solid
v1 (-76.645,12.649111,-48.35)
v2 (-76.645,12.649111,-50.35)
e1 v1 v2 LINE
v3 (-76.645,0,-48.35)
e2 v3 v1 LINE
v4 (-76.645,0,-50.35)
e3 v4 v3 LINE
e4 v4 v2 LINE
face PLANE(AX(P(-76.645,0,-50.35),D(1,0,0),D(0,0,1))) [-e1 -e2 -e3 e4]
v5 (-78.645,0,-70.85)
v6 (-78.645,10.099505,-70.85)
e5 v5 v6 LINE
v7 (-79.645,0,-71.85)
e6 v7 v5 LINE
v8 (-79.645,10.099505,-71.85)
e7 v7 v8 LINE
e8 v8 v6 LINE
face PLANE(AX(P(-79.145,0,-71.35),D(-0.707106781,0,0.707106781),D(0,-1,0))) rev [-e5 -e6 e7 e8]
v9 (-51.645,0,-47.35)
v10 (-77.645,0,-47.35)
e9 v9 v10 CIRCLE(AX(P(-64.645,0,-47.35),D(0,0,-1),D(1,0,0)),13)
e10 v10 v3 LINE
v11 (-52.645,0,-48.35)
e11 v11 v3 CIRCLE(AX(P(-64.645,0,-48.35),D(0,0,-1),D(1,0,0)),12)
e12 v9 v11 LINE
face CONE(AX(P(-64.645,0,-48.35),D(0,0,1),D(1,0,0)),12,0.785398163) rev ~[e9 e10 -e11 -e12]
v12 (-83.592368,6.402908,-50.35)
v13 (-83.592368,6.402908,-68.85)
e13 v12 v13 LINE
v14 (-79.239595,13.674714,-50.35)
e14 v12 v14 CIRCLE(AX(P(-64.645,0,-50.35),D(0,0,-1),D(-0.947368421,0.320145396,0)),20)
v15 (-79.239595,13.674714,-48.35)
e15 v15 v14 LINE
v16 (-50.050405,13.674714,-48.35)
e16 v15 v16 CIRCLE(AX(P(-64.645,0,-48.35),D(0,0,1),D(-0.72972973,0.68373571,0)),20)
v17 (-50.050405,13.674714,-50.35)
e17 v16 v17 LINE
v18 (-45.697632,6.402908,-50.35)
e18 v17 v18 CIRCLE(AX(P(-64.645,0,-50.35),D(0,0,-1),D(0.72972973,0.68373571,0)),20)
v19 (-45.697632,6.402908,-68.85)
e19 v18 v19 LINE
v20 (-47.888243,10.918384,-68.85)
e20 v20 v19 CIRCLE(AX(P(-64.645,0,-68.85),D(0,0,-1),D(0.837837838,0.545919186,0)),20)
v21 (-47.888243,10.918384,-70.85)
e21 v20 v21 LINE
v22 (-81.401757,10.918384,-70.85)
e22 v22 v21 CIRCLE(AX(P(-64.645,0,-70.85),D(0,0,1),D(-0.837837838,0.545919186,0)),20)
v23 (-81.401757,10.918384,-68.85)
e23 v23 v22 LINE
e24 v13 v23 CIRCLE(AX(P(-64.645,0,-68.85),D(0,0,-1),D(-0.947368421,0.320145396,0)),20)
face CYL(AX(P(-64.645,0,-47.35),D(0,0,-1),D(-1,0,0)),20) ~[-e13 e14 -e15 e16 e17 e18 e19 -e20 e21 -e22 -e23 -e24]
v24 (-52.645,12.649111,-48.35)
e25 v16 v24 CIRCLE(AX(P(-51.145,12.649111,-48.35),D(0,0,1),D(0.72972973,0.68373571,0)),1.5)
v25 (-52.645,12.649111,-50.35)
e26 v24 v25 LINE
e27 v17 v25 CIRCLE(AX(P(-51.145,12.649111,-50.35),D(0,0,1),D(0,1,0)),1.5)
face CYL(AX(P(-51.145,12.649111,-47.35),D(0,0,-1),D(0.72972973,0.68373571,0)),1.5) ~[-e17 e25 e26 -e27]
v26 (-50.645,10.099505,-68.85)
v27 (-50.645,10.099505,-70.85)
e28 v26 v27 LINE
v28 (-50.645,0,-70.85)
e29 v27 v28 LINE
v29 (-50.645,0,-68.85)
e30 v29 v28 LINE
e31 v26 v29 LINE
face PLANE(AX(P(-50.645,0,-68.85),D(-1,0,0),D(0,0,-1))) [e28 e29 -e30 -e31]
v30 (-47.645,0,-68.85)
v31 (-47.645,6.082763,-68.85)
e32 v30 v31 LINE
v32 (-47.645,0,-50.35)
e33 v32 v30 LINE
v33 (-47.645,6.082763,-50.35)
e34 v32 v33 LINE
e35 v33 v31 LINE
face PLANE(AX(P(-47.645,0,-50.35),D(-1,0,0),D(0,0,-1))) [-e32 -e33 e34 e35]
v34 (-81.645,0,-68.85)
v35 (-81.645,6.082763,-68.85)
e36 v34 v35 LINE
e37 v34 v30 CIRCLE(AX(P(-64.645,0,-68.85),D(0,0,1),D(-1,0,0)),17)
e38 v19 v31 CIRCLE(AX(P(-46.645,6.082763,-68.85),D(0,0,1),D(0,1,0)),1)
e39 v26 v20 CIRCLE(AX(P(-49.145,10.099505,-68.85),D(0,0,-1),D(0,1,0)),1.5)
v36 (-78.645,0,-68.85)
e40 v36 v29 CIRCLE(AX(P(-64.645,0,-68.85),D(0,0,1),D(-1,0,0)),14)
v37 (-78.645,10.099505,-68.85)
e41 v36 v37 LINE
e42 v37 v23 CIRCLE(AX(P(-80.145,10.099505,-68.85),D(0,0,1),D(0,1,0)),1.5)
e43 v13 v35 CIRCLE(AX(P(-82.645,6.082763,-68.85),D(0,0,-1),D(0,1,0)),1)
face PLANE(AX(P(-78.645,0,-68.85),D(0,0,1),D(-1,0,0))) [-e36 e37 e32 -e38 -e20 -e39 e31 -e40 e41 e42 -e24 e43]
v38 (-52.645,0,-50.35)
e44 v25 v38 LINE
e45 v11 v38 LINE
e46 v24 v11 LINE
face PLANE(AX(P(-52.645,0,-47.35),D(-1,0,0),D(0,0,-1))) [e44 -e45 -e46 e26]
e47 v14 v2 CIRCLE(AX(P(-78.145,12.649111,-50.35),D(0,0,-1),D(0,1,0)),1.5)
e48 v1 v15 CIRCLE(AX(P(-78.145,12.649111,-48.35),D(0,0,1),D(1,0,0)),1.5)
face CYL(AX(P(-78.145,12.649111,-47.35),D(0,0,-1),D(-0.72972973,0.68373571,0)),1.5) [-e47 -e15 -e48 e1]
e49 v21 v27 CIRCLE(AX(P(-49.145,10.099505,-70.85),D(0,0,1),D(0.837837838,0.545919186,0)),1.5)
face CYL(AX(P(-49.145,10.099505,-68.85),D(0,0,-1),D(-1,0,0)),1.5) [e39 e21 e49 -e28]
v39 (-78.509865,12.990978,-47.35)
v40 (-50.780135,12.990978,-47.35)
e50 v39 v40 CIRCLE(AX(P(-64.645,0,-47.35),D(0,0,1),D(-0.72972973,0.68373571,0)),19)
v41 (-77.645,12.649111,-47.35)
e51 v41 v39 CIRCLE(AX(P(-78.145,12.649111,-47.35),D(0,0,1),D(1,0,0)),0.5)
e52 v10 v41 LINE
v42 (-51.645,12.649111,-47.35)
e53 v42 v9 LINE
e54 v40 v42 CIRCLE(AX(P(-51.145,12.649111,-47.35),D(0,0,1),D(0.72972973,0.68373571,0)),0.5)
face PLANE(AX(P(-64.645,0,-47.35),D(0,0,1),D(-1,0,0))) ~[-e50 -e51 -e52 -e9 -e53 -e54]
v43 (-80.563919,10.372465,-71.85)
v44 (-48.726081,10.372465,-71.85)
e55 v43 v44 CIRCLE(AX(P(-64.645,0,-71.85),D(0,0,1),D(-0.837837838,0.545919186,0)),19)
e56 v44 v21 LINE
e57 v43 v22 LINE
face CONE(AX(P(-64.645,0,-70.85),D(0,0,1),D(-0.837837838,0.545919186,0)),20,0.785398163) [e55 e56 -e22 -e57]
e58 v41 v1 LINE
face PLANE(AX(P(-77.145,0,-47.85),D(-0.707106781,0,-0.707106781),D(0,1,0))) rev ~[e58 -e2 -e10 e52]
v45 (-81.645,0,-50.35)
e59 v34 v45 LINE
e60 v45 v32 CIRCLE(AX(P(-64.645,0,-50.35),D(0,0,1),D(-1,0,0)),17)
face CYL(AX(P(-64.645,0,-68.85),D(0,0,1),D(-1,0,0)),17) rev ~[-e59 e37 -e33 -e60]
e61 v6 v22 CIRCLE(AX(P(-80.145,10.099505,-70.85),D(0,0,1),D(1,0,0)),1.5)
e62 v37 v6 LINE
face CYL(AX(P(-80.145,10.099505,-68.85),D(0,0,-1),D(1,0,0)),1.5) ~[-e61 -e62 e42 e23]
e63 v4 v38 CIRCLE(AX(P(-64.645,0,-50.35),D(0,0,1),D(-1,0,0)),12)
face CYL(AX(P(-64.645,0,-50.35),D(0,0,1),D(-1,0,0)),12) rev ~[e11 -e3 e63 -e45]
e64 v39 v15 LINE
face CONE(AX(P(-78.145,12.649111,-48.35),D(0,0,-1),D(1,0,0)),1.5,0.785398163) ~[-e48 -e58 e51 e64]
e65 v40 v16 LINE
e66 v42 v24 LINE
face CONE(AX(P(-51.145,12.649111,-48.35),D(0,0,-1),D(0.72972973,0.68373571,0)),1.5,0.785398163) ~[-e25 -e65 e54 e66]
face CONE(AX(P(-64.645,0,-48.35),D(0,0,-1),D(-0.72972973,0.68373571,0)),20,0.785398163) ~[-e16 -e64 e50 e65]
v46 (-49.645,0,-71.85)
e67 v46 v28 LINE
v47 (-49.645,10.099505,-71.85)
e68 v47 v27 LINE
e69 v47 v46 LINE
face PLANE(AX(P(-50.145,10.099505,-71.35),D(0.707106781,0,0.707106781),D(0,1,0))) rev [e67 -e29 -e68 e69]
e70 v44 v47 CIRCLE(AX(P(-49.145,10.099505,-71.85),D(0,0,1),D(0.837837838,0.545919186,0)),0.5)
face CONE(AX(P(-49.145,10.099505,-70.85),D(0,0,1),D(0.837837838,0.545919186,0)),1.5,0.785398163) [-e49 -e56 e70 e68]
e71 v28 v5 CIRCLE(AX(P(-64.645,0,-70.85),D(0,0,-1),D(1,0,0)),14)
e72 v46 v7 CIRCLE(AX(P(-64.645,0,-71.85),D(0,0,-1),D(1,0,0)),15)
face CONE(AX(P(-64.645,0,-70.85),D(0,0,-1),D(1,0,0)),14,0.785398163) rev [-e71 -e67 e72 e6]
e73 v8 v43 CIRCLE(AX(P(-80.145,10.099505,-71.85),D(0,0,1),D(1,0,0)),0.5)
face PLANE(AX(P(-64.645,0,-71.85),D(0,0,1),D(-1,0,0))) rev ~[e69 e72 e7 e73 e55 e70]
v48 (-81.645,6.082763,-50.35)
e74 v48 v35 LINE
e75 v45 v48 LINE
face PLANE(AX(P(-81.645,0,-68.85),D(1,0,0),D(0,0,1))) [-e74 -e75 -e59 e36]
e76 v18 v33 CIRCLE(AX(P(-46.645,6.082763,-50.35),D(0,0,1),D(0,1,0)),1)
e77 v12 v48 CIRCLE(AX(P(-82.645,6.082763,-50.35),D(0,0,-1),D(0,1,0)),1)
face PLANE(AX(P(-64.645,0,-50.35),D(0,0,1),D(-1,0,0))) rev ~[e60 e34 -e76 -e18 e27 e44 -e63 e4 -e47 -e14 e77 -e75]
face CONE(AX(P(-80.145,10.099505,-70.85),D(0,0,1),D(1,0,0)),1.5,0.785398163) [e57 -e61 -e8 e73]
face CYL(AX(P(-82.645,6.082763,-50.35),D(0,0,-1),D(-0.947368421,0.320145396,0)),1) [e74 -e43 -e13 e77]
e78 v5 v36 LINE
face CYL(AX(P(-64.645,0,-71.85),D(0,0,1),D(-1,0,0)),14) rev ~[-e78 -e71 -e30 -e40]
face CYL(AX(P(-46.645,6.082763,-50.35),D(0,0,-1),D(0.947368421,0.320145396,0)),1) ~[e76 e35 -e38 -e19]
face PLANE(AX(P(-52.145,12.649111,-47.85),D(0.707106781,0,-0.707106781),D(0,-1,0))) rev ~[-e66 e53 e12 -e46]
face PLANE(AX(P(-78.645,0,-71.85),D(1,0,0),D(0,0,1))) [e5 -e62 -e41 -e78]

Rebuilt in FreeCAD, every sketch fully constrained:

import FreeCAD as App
import Part
import Sketcher

V = App.Vector
Q = App.Units.Quantity


def edges_at(feature, points):
    """Names of the edges that pass closest to the given points."""
    edges = feature.Shape.Edges
    near = lambda p: min(range(len(edges)), key=lambda i: edges[i].distToShape(Part.Vertex(*p))[0])
    return sorted({f"Edge{near(p) + 1}" for p in points})

doc = App.newDocument("Part")
body = doc.addObject("PartDesign::Body", "Body")

# Sketch on XZ plane
sketch1 = body.newObject("Sketcher::SketchObject", "Sketch")
sketch1.AttachmentSupport = (doc.getObject("XZ_Plane"), [""])
sketch1.MapMode = "FlatFace"
sketch1.addGeometry(Part.LineSegment(V(-76.6, -50.4, 0), V(-76.6, -47.4, 0)), False)
sketch1.addGeometry(Part.LineSegment(V(-76.6, -47.4, 0), V(-84.6, -47.4, 0)), False)
sketch1.addGeometry(Part.LineSegment(V(-84.6, -47.4, 0), V(-84.6, -71.8, 0)), False)
sketch1.addGeometry(Part.LineSegment(V(-84.6, -71.8, 0), V(-78.6, -71.8, 0)), False)
sketch1.addGeometry(Part.LineSegment(V(-78.6, -71.8, 0), V(-78.6, -68.8, 0)), False)
sketch1.addGeometry(Part.LineSegment(V(-78.6, -68.8, 0), V(-81.6, -68.8, 0)), False)
sketch1.addGeometry(Part.LineSegment(V(-81.6, -68.8, 0), V(-81.6, -50.4, 0)), False)
sketch1.addGeometry(Part.LineSegment(V(-81.6, -50.4, 0), V(-76.6, -50.4, 0)), False)
sketch1.addGeometry(Part.LineSegment(V(-64.6, -71.8, 0), V(-64.6, -47.4, 0)), True)  # axis
sketch1.addConstraint(Sketcher.Constraint("Coincident", 0, 2, 1, 1))
sketch1.addConstraint(Sketcher.Constraint("Coincident", 1, 2, 2, 1))
sketch1.addConstraint(Sketcher.Constraint("Coincident", 2, 2, 3, 1))
sketch1.addConstraint(Sketcher.Constraint("Coincident", 3, 2, 4, 1))
sketch1.addConstraint(Sketcher.Constraint("Coincident", 4, 2, 5, 1))
sketch1.addConstraint(Sketcher.Constraint("Coincident", 5, 2, 6, 1))
sketch1.addConstraint(Sketcher.Constraint("Coincident", 6, 2, 7, 1))
sketch1.addConstraint(Sketcher.Constraint("Coincident", 7, 2, 0, 1))
sketch1.addConstraint(Sketcher.Constraint("Vertical", 0))
sketch1.addConstraint(Sketcher.Constraint("Horizontal", 1))
sketch1.addConstraint(Sketcher.Constraint("Vertical", 2))
sketch1.addConstraint(Sketcher.Constraint("Horizontal", 3))
sketch1.addConstraint(Sketcher.Constraint("Vertical", 4))
sketch1.addConstraint(Sketcher.Constraint("Horizontal", 5))
sketch1.addConstraint(Sketcher.Constraint("Vertical", 6))
sketch1.addConstraint(Sketcher.Constraint("Horizontal", 7))
sketch1.addConstraint(Sketcher.Constraint("Vertical", 8))
sketch1.addConstraint(Sketcher.Constraint("Horizontal", 3, 2, 8, 1))
sketch1.addConstraint(Sketcher.Constraint("Horizontal", 1, 2, 8, 2))
sketch1.addConstraint(Sketcher.Constraint("Equal", 5, 0))
sketch1.addConstraint(Sketcher.Constraint("Equal", 0, 4))
sketch1.addConstraint(Sketcher.Constraint("DistanceX", 1, 2, 1, 1, Q("8 mm")))
sketch1.addConstraint(Sketcher.Constraint("DistanceX", 3, 1, 3, 2, Q("6 mm")))
sketch1.addConstraint(Sketcher.Constraint("DistanceX", 5, 2, 5, 1, Q("3 mm")))
sketch1.addConstraint(Sketcher.Constraint("DistanceY", 2, 2, 2, 1, Q("24.5 mm")))
sketch1.addConstraint(Sketcher.Constraint("DistanceX", 3, 2, 8, 1, Q("14 mm")))
sketch1.addConstraint(Sketcher.Constraint("DistanceY", 0, 2, -1, 1, Q("47.35 mm")))
sketch1.addConstraint(Sketcher.Constraint("DistanceX", 0, 2, -1, 1, Q("76.645 mm")))
revolution = body.newObject("PartDesign::Revolution", "Revolution")
revolution.Profile = sketch1
revolution.ReferenceAxis = (sketch1, ["Axis0"])
revolution.Angle = 360

# Sketch on XZ plane
sketch2 = body.newObject("Sketcher::SketchObject", "Sketch001")
sketch2.AttachmentSupport = (doc.getObject("XZ_Plane"), [""])
sketch2.MapMode = "FlatFace"
sketch2.addGeometry(Part.LineSegment(V(-52.6, -47.4, 0), V(-76.6, -47.4, 0)), False)
sketch2.addGeometry(Part.LineSegment(V(-76.6, -47.4, 0), V(-76.6, -50.4, 0)), False)
sketch2.addGeometry(Part.LineSegment(V(-76.6, -50.4, 0), V(-81.6, -50.4, 0)), False)
sketch2.addGeometry(Part.LineSegment(V(-81.6, -50.4, 0), V(-81.6, -68.8, 0)), False)
sketch2.addGeometry(Part.LineSegment(V(-81.6, -68.8, 0), V(-78.6, -68.8, 0)), False)
sketch2.addGeometry(Part.LineSegment(V(-78.6, -68.8, 0), V(-78.6, -71.8, 0)), False)
sketch2.addGeometry(Part.LineSegment(V(-78.6, -71.8, 0), V(-50.6, -71.8, 0)), False)
sketch2.addGeometry(Part.LineSegment(V(-50.6, -71.8, 0), V(-50.6, -68.8, 0)), False)
sketch2.addGeometry(Part.LineSegment(V(-50.6, -68.8, 0), V(-47.6, -68.8, 0)), False)
sketch2.addGeometry(Part.LineSegment(V(-47.6, -68.8, 0), V(-47.6, -50.4, 0)), False)
sketch2.addGeometry(Part.LineSegment(V(-47.6, -50.4, 0), V(-52.6, -50.4, 0)), False)
sketch2.addGeometry(Part.LineSegment(V(-52.6, -50.4, 0), V(-52.6, -47.4, 0)), False)
sketch2.addConstraint(Sketcher.Constraint("Coincident", 0, 2, 1, 1))
sketch2.addConstraint(Sketcher.Constraint("Coincident", 1, 2, 2, 1))
sketch2.addConstraint(Sketcher.Constraint("Coincident", 2, 2, 3, 1))
sketch2.addConstraint(Sketcher.Constraint("Coincident", 3, 2, 4, 1))
sketch2.addConstraint(Sketcher.Constraint("Coincident", 4, 2, 5, 1))
sketch2.addConstraint(Sketcher.Constraint("Coincident", 5, 2, 6, 1))
sketch2.addConstraint(Sketcher.Constraint("Coincident", 6, 2, 7, 1))
sketch2.addConstraint(Sketcher.Constraint("Coincident", 7, 2, 8, 1))
sketch2.addConstraint(Sketcher.Constraint("Coincident", 8, 2, 9, 1))
sketch2.addConstraint(Sketcher.Constraint("Coincident", 9, 2, 10, 1))
sketch2.addConstraint(Sketcher.Constraint("Coincident", 10, 2, 11, 1))
sketch2.addConstraint(Sketcher.Constraint("Coincident", 11, 2, 0, 1))
sketch2.addConstraint(Sketcher.Constraint("Horizontal", 0))
sketch2.addConstraint(Sketcher.Constraint("Vertical", 1))
sketch2.addConstraint(Sketcher.Constraint("Horizontal", 2))
sketch2.addConstraint(Sketcher.Constraint("Vertical", 3))
sketch2.addConstraint(Sketcher.Constraint("Horizontal", 4))
sketch2.addConstraint(Sketcher.Constraint("Vertical", 5))
sketch2.addConstraint(Sketcher.Constraint("Horizontal", 6))
sketch2.addConstraint(Sketcher.Constraint("Vertical", 7))
sketch2.addConstraint(Sketcher.Constraint("Horizontal", 8))
sketch2.addConstraint(Sketcher.Constraint("Vertical", 9))
sketch2.addConstraint(Sketcher.Constraint("Horizontal", 10))
sketch2.addConstraint(Sketcher.Constraint("Vertical", 11))
sketch2.addConstraint(Sketcher.Constraint("Horizontal", 4, 2, 7, 2))
sketch2.addConstraint(Sketcher.Constraint("Horizontal", 2, 2, 9, 2))
sketch2.addConstraint(Sketcher.Constraint("Equal", 4, 8))
sketch2.addConstraint(Sketcher.Constraint("Equal", 2, 10))
sketch2.addConstraint(Sketcher.Constraint("Equal", 8, 1))
sketch2.addConstraint(Sketcher.Constraint("Equal", 1, 5))
sketch2.addConstraint(Sketcher.Constraint("DistanceX", 0, 2, 0, 1, Q("24 mm")))
sketch2.addConstraint(Sketcher.Constraint("DistanceX", 2, 2, 2, 1, Q("5 mm")))
sketch2.addConstraint(Sketcher.Constraint("DistanceX", 4, 1, 4, 2, Q("3 mm")))
sketch2.addConstraint(Sketcher.Constraint("DistanceY", 3, 2, 3, 1, Q("18.5 mm")))
sketch2.addConstraint(Sketcher.Constraint("DistanceY", 0, 2, -1, 1, Q("47.35 mm")))
sketch2.addConstraint(Sketcher.Constraint("DistanceX", 0, 2, -1, 1, Q("76.645 mm")))
pocket1 = body.newObject("PartDesign::Pocket", "Pocket")
pocket1.Profile = sketch2
pocket1.Type = "ThroughAll"
doc.recompute()

fillet = body.newObject("PartDesign::Fillet", "Fillet")
fillet.Base = (pocket1, edges_at(pocket1, [
    (-52.645, 16, -48.85),
    (-76.645, 16, -48.85),
    (-78.645, 14.283, -70.35),
    (-50.645, 14.283, -70.35),
]))
fillet.Radius = 1.5
doc.recompute()

fillet2 = body.newObject("PartDesign::Fillet", "Fillet001")
fillet2.Base = (fillet, edges_at(fillet, [(-47.645, 10.536, -59.6), (-81.645, 10.536, -59.6)]))
fillet2.Radius = 1
doc.recompute()

chamfer = body.newObject("PartDesign::Chamfer", "Chamfer")
chamfer.Base = (fillet2, edges_at(fillet2, [(-64.645, -20, -47.35), (-64.645, -20, -71.85)]))
chamfer.Size = 1

doc.recompute()
